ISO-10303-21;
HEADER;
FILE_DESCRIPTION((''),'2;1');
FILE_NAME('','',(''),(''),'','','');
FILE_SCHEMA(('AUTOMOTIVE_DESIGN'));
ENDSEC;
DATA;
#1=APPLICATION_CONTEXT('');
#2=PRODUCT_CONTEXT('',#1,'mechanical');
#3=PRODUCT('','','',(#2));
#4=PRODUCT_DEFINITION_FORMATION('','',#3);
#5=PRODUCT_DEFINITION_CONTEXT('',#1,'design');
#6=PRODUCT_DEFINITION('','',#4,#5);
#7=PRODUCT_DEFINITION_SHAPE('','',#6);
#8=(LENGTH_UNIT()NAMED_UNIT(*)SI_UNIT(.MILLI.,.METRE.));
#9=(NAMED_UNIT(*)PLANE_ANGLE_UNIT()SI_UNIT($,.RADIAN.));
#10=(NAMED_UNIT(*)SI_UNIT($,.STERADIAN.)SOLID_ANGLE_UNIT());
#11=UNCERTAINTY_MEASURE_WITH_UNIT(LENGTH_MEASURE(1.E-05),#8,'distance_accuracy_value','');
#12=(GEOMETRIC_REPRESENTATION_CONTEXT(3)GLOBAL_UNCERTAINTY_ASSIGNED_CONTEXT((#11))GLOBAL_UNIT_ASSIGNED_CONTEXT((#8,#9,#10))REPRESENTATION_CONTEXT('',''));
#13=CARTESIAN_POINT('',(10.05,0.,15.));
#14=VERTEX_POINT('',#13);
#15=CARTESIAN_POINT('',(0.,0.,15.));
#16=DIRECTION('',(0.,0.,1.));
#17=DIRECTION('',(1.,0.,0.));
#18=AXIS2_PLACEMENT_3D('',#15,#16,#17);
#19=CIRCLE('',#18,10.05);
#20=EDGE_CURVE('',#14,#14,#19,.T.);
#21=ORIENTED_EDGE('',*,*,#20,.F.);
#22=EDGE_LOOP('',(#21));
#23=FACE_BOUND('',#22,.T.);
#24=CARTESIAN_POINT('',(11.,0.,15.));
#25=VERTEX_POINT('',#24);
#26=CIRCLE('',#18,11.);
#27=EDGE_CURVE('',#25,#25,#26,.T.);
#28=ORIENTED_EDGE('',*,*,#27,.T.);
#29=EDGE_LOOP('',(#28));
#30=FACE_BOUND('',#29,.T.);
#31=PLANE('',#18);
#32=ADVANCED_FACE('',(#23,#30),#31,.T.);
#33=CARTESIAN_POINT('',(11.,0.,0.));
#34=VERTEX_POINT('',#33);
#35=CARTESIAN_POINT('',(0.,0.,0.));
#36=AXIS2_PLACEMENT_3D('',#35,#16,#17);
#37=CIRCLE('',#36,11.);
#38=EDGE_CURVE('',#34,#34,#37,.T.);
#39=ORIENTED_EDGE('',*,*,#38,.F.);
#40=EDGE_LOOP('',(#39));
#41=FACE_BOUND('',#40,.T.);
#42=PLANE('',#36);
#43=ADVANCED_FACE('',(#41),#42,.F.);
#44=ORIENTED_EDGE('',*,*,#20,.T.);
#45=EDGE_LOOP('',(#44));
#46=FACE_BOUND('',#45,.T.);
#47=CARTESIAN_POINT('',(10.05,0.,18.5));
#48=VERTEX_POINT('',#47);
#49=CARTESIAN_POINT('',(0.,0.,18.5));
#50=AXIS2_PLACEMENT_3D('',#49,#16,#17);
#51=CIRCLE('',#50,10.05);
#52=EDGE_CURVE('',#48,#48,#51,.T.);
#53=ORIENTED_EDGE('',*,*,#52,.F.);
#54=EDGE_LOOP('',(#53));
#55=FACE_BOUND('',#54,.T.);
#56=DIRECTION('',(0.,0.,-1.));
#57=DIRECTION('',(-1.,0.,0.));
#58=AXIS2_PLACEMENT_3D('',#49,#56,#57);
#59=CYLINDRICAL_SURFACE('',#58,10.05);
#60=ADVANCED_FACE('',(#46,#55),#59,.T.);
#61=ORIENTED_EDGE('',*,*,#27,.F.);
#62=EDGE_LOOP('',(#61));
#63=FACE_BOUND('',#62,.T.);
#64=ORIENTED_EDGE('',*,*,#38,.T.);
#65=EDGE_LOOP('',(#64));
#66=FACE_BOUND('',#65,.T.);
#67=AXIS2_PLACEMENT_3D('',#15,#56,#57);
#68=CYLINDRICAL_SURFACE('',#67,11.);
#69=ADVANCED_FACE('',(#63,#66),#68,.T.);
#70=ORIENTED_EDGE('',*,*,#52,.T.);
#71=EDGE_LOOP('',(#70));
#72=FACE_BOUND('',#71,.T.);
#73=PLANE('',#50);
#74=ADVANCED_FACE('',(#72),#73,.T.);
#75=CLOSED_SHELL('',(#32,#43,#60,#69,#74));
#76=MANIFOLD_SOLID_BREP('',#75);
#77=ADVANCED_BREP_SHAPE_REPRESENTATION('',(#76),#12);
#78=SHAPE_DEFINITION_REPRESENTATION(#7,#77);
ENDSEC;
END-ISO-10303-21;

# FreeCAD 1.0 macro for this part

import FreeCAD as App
import Part
import Sketcher

V = App.Vector
Q = App.Units.Quantity

doc = App.newDocument("Part")
body = doc.addObject("PartDesign::Body", "Body")

# Sketch on XY plane
sketch1 = body.newObject("Sketcher::SketchObject", "Sketch")
sketch1.AttachmentSupport = (doc.getObject("XY_Plane"), [""])
sketch1.MapMode = "FlatFace"
sketch1.addGeometry(Part.Circle(V(0, 0, 0), V(0, 0, 1), 11), False)
sketch1.addConstraint([
    Sketcher.Constraint("Coincident", 0, 3, -1, 1),
    Sketcher.Constraint("Diameter", 0, Q("22 mm")),
])
pad1 = body.newObject("PartDesign::Pad", "Pad")
pad1.Profile = sketch1
pad1.Length = 15

# Sketch on XY plane
sketch2 = body.newObject("Sketcher::SketchObject", "Sketch001")
sketch2.AttachmentSupport = (doc.getObject("XY_Plane"), [""])
sketch2.MapMode = "FlatFace"
sketch2.AttachmentOffset = App.Placement(V(0, 0, 15), App.Rotation())
sketch2.addGeometry(Part.Circle(V(0, 0, 0), V(0, 0, 1), 10), False)
sketch2.addConstraint([
    Sketcher.Constraint("Coincident", 0, 3, -1, 1),
    Sketcher.Constraint("Diameter", 0, Q("20.1 mm")),
])
pad2 = body.newObject("PartDesign::Pad", "Pad001")
pad2.Profile = sketch2
pad2.Length = 3.5

doc.recompute()
